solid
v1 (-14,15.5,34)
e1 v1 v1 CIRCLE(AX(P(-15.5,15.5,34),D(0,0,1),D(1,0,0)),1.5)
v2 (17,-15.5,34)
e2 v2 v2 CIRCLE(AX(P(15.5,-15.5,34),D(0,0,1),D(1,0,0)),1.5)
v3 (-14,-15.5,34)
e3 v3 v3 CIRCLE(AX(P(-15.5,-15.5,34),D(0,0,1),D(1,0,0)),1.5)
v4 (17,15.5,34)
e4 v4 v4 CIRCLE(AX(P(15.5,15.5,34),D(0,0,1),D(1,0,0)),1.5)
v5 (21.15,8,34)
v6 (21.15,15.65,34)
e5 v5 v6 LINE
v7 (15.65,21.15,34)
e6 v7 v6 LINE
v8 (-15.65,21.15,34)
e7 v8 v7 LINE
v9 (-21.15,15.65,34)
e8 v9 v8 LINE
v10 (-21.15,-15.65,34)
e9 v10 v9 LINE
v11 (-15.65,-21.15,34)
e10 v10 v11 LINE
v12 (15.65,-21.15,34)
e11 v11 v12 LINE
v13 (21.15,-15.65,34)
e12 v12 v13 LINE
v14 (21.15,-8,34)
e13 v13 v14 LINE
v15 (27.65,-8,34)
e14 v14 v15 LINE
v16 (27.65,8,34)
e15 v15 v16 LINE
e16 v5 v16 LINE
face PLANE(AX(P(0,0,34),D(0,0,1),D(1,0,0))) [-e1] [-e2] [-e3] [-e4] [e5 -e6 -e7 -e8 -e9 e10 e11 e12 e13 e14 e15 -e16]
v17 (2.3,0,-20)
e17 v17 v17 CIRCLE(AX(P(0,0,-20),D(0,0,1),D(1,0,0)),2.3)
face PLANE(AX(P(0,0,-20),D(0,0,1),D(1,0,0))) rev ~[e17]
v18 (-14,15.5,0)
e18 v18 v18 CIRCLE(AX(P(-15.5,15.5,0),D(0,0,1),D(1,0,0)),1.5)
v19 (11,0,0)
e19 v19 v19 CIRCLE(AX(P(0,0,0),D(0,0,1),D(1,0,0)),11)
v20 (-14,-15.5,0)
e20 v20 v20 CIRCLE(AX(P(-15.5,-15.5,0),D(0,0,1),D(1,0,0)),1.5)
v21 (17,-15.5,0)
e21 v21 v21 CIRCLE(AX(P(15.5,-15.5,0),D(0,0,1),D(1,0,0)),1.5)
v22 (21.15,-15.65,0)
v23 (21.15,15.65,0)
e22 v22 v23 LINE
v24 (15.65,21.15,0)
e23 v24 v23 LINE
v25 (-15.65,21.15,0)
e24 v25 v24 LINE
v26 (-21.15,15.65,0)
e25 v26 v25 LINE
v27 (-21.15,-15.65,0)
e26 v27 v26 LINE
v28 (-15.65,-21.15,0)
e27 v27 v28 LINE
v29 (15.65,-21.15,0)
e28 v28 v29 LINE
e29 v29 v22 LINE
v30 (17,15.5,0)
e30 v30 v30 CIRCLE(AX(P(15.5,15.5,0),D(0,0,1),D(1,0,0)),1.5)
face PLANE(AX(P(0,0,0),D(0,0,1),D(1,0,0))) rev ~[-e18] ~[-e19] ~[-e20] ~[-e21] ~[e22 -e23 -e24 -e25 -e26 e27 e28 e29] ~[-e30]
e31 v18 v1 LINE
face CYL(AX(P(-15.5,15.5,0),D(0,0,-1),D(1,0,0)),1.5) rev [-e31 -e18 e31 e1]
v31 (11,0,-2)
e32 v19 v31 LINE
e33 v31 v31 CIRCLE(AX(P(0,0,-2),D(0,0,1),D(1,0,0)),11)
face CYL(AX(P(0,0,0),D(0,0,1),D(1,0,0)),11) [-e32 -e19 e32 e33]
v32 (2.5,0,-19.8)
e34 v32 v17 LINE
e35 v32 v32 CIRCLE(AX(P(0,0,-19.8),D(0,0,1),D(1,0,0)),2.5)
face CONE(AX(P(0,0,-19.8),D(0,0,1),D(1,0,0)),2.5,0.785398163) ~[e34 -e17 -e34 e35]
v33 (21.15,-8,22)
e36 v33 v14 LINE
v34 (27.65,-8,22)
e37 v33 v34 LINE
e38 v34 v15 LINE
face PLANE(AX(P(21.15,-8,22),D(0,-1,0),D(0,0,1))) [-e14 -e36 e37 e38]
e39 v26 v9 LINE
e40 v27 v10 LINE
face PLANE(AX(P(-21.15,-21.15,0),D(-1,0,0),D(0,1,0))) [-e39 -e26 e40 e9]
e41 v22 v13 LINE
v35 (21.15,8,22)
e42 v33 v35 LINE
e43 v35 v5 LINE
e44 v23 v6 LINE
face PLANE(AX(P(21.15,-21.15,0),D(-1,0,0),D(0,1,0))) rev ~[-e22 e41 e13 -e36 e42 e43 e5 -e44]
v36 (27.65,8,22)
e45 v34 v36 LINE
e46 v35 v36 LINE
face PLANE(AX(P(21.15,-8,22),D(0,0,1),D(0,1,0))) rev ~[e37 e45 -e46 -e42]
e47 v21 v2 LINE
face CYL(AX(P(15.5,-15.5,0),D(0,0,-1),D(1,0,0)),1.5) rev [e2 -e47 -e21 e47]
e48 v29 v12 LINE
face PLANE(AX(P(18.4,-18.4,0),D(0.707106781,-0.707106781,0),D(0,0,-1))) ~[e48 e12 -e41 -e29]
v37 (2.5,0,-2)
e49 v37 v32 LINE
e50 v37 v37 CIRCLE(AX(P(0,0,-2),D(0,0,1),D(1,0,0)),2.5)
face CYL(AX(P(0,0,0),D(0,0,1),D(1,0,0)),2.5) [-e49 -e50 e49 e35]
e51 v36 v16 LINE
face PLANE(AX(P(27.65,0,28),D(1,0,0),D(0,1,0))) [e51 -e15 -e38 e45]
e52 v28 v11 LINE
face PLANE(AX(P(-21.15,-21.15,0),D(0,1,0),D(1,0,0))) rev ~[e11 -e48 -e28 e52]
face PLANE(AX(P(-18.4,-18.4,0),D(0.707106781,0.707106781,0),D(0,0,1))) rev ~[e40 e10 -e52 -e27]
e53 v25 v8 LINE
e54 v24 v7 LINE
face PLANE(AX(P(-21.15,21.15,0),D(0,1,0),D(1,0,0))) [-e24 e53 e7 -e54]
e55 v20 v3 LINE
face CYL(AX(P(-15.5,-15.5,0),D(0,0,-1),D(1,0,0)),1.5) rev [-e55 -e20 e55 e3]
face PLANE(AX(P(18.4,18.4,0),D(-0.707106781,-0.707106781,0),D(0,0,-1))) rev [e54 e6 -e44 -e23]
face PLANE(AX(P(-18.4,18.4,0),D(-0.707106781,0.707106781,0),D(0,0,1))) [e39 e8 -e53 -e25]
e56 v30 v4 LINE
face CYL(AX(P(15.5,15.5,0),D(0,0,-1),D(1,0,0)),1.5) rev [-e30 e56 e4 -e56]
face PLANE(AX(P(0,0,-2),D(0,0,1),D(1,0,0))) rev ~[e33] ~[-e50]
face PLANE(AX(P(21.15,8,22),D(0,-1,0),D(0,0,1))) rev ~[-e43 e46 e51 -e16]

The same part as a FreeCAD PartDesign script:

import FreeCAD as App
import Part
import Sketcher

V = App.Vector
Q = App.Units.Quantity


def edges_at(feature, points):
    """Names of the edges that pass closest to the given points."""
    edges = feature.Shape.Edges
    near = lambda p: min(range(len(edges)), key=lambda i: edges[i].distToShape(Part.Vertex(*p))[0])
    return sorted({f"Edge{near(p) + 1}" for p in points})


def add_polygon(sketch, points):
    """Adds a closed chain of lines whose ends are joined by coincident constraints."""
    first, n = sketch.GeometryCount, len(points)
    for a, b in zip(points, points[1:] + points[:1]):
        sketch.addGeometry(Part.LineSegment(App.Vector(*a, 0), App.Vector(*b, 0)), False)
    for i in range(n):
        sketch.addConstraint(Sketcher.Constraint("Coincident", first + i, 2, first + (i + 1) % n, 1))

doc = App.newDocument("Part")
body = doc.addObject("PartDesign::Body", "Body")

# Sketch on XY plane
sketch1 = body.newObject("Sketcher::SketchObject", "Sketch")
sketch1.AttachmentSupport = (doc.getObject("XY_Plane"), [""])
sketch1.MapMode = "FlatFace"
add_polygon(sketch1, [(-21.1, 21.1), (-21.1, -21.1), (21.1, -21.1), (21.1, 21.1)])  # lines 0-3
sketch1.addGeometry(Part.Circle(V(-15.5, -15.5, 0), V(0, 0, 1), 1.5), False)  # 4
sketch1.addGeometry(Part.Circle(V(15.5, -15.5, 0), V(0, 0, 1), 1.5), False)  # 5
sketch1.addGeometry(Part.Circle(V(-15.5, 15.5, 0), V(0, 0, 1), 1.5), False)  # 6
sketch1.addGeometry(Part.Circle(V(15.5, 15.5, 0), V(0, 0, 1), 1.5), False)  # 7
sketch1.addConstraint([
    Sketcher.Constraint("Vertical", 0),
    Sketcher.Constraint("Horizontal", 1),
    Sketcher.Constraint("Vertical", 2),
    Sketcher.Constraint("Horizontal", 3),
    Sketcher.Constraint("Equal", 4, 5),
    Sketcher.Constraint("Equal", 5, 6),
    Sketcher.Constraint("Equal", 6, 7),
    Sketcher.Constraint("Symmetric", 5, 3, 6, 3, -1, 1),
    Sketcher.Constraint("Symmetric", 4, 3, 7, 3, -1, 1),
    Sketcher.Constraint("Symmetric", 0, 2, 2, 2, -1, 1),
    Sketcher.Constraint("Symmetric", 4, 3, 5, 3, -2),
    Sketcher.Constraint("Equal", 3, 0),
    Sketcher.Constraint("Diameter", 4, Q("3 mm")),
    Sketcher.Constraint("DistanceX", 1, 1, 1, 2, Q("42.3 mm")),
    Sketcher.Constraint("DistanceX", 4, 3, 5, 3, Q("31 mm")),
    Sketcher.Constraint("DistanceY", 4, 3, 6, 3, Q("31 mm")),
])
pad1 = body.newObject("PartDesign::Pad", "Pad")
pad1.Profile = sketch1
pad1.Length = 34

# Sketch on XY plane
sketch2 = body.newObject("Sketcher::SketchObject", "Sketch001")
sketch2.AttachmentSupport = (doc.getObject("XY_Plane"), [""])
sketch2.MapMode = "FlatFace"
sketch2.addGeometry([
    Part.Circle(V(0, 0, 0), V(0, 0, 1), 11),
    Part.Circle(V(0, 0, 0), V(0, 0, 1), 2.5),
], False)
sketch2.addConstraint([
    Sketcher.Constraint("Coincident", 0, 3, -1, 1),
    Sketcher.Constraint("Coincident", 1, 3, -1, 1),
    Sketcher.Constraint("Diameter", 0, Q("22 mm")),
    Sketcher.Constraint("Diameter", 1, Q("5 mm")),
])
pad2 = body.newObject("PartDesign::Pad", "Pad001")
pad2.Profile = sketch2
pad2.Length = 2
pad2.Reversed = True

# Sketch on XY plane
sketch3 = body.newObject("Sketcher::SketchObject", "Sketch002")
sketch3.AttachmentSupport = (doc.getObject("XY_Plane"), [""])
sketch3.MapMode = "FlatFace"
sketch3.addGeometry(Part.Circle(V(0, 0, 0), V(0, 0, 1), 2.5), False)
sketch3.addConstraint([
    Sketcher.Constraint("Coincident", 0, 3, -1, 1),
    Sketcher.Constraint("Diameter", 0, Q("5 mm")),
])
pad3 = body.newObject("PartDesign::Pad", "Pad002")
pad3.Profile = sketch3
pad3.Length = 20
pad3.Reversed = True
doc.recompute()

chamfer = body.newObject("PartDesign::Chamfer", "Chamfer")
chamfer.Base = (pad3, edges_at(pad3, [
    (-21.15, -21.15, 17),
    (21.15, -21.15, 17),
    (21.15, 21.15, 17),
    (-21.15, 21.15, 17),
]))
chamfer.Size = 5.5
doc.recompute()

chamfer2 = body.newObject("PartDesign::Chamfer", "Chamfer001")
chamfer2.Base = (chamfer, edges_at(chamfer, [(-2.5, 0, -20)]))
chamfer2.Size = 0.2

# Sketch on YZ plane
sketch4 = body.newObject("Sketcher::SketchObject", "Sketch003")
sketch4.AttachmentSupport = (doc.getObject("YZ_Plane"), [""])
sketch4.MapMode = "FlatFace"
sketch4.AttachmentOffset = App.Placement(V(0, 0, 21.15), App.Rotation())
add_polygon(sketch4, [(-8, 34), (-8, 22), (8, 22), (8, 34)])  # lines 0-3
sketch4.addConstraint([
    Sketcher.Constraint("Vertical", 0),
    Sketcher.Constraint("Horizontal", 1),
    Sketcher.Constraint("Vertical", 2),
    Sketcher.Constraint("Horizontal", 3),
    Sketcher.Constraint("DistanceX", 1, 1, 1, 2, Q("16 mm")),
    Sketcher.Constraint("DistanceY", 0, 2, 0, 1, Q("12 mm")),
    Sketcher.Constraint("DistanceX", 0, 2, -1, 1, Q("8 mm")),
    Sketcher.Constraint("DistanceY", -1, 1, 0, 2, Q("22 mm")),
])
pad4 = body.newObject("PartDesign::Pad", "Pad003")
pad4.Profile = sketch4
pad4.Length = 6.5

doc.recompute()
